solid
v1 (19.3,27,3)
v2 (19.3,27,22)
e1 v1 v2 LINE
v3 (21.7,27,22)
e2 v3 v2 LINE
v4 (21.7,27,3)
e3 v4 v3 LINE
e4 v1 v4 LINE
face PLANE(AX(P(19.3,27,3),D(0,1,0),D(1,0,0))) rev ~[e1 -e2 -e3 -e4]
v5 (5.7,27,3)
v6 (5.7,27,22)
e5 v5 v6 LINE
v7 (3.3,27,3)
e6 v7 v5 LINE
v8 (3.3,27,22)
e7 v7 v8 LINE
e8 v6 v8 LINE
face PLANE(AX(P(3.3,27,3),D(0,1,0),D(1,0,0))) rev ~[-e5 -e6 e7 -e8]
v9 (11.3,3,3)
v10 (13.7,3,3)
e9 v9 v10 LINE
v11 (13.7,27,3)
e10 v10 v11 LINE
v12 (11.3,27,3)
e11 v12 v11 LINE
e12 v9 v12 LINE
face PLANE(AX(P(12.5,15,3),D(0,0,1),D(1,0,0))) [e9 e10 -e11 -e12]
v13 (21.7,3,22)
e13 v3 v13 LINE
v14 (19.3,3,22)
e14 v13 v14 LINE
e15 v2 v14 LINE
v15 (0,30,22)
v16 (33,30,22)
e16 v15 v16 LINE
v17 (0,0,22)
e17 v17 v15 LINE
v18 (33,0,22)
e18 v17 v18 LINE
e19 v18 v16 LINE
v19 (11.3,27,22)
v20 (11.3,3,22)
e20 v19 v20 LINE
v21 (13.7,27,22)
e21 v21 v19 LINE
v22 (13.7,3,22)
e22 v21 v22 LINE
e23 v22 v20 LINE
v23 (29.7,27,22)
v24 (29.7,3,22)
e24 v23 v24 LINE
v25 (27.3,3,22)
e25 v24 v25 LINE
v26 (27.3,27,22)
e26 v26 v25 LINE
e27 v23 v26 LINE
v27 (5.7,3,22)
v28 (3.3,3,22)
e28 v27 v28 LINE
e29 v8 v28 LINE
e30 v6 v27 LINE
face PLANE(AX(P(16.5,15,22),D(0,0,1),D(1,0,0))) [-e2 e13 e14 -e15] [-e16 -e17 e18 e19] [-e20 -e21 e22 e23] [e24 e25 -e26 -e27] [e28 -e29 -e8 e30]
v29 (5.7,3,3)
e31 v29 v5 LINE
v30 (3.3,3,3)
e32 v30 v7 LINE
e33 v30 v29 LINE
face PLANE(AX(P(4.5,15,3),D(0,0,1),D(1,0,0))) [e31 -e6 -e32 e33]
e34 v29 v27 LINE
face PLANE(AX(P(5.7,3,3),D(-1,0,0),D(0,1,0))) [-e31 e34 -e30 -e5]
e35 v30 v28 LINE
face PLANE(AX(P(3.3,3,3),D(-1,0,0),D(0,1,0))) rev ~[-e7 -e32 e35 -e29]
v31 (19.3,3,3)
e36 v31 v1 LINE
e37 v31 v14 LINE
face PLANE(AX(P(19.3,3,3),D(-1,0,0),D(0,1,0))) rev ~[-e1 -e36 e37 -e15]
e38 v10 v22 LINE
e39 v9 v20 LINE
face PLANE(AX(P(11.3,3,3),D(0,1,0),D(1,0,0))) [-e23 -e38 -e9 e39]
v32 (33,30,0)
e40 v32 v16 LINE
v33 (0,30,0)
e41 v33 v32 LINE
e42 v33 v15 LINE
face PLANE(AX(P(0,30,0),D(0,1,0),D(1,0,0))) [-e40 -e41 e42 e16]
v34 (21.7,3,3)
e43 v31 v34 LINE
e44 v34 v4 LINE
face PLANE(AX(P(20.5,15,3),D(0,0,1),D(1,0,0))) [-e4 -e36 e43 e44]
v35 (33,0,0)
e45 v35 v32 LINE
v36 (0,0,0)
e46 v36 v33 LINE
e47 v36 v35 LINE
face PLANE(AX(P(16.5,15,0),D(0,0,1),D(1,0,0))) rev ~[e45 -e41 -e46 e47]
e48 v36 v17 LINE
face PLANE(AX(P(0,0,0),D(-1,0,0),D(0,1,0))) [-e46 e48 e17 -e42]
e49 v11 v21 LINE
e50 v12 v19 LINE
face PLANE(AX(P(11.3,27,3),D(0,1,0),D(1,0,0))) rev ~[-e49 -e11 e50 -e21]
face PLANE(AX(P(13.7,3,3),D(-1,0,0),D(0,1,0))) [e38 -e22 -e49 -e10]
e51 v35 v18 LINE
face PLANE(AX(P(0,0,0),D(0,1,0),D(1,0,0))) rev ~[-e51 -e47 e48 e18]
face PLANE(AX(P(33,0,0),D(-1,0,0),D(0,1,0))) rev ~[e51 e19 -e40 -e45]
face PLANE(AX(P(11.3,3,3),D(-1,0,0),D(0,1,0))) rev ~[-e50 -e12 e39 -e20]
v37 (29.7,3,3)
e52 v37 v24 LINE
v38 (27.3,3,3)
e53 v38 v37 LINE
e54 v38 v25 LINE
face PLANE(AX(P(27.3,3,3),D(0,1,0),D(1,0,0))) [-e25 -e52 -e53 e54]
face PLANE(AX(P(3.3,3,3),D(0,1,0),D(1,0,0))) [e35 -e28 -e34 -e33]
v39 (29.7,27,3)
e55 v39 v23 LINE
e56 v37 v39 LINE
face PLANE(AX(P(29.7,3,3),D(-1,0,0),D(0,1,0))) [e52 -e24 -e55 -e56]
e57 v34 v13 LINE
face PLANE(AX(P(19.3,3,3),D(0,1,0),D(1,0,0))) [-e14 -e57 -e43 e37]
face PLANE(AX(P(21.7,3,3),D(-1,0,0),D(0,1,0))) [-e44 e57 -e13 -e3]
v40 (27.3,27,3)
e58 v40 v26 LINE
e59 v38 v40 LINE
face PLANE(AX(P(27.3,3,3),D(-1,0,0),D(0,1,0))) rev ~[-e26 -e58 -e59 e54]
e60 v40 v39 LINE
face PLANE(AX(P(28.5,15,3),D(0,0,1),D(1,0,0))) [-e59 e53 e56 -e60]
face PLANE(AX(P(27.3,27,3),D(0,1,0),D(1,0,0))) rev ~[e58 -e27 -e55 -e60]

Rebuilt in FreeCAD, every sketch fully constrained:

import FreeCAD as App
import Part
import Sketcher

V = App.Vector


def add_polygon(sketch, points):
    """Adds a closed chain of lines whose ends are joined by coincident constraints."""
    first, n = sketch.GeometryCount, len(points)
    for a, b in zip(points, points[1:] + points[:1]):
        sketch.addGeometry(Part.LineSegment(App.Vector(*a, 0), App.Vector(*b, 0)), False)
    for i in range(n):
        sketch.addConstraint(Sketcher.Constraint("Coincident", first + i, 2, first + (i + 1) % n, 1))

doc = App.newDocument("Part")
body = doc.addObject("PartDesign::Body", "Body")

# Sketch on XY plane
sketch1 = doc.addObject("Sketcher::SketchObject", "Sketch")
body.addObject(sketch1)
sketch1.AttachmentSupport = (doc.XY_Plane, [""])
sketch1.MapMode = "FlatFace"
add_polygon(sketch1, [(11.3, 27), (11.3, 3), (13.7, 3), (13.7, 27)])  # lines 0-3
sketch1.addConstraint([
    Sketcher.Constraint("Vertical", 0),
    Sketcher.Constraint("Horizontal", 1),
    Sketcher.Constraint("Vertical", 2),
    Sketcher.Constraint("Horizontal", 3),
    Sketcher.Constraint("DistanceY", 0, 2, 0, 1, 24.0),
    Sketcher.Constraint("DistanceX", 1, 1, 1, 2, 2.4),
    Sketcher.Constraint("DistanceY", -1, 1, 0, 2, 3.0),
    Sketcher.Constraint("DistanceX", -1, 1, 0, 2, 11.3),
])
pad1 = doc.addObject("PartDesign::Pad", "Pad")
body.addObject(pad1)
pad1.Profile = sketch1
pad1.Length = 30
body2 = doc.addObject("PartDesign::Body", "Body001")

# Sketch on XY plane
sketch2 = doc.addObject("Sketcher::SketchObject", "Sketch001")
body2.addObject(sketch2)
sketch2.AttachmentSupport = (doc.getObject("XY_Plane001"), [""])
sketch2.MapMode = "FlatFace"
add_polygon(sketch2, [(19.3, 27), (19.3, 3), (21.7, 3), (21.7, 27)])  # lines 0-3
sketch2.addConstraint([
    Sketcher.Constraint("Vertical", 0),
    Sketcher.Constraint("Horizontal", 1),
    Sketcher.Constraint("Vertical", 2),
    Sketcher.Constraint("Horizontal", 3),
    Sketcher.Constraint("DistanceY", 0, 2, 0, 1, 24.0),
    Sketcher.Constraint("DistanceX", 1, 1, 1, 2, 2.4),
    Sketcher.Constraint("DistanceY", -1, 1, 0, 2, 3.0),
    Sketcher.Constraint("DistanceX", -1, 1, 0, 2, 19.3),
])
pad2 = doc.addObject("PartDesign::Pad", "Pad001")
body2.addObject(pad2)
pad2.Profile = sketch2
pad2.Length = 30
body3 = doc.addObject("PartDesign::Body", "Body002")

# Sketch on XY plane
sketch3 = doc.addObject("Sketcher::SketchObject", "Sketch002")
body3.addObject(sketch3)
sketch3.AttachmentSupport = (doc.getObject("XY_Plane002"), [""])
sketch3.MapMode = "FlatFace"
add_polygon(sketch3, [(27.3, 27), (27.3, 3), (29.7, 3), (29.7, 27)])  # lines 0-3
sketch3.addConstraint([
    Sketcher.Constraint("Vertical", 0),
    Sketcher.Constraint("Horizontal", 1),
    Sketcher.Constraint("Vertical", 2),
    Sketcher.Constraint("Horizontal", 3),
    Sketcher.Constraint("DistanceY", 0, 2, 0, 1, 24.0),
    Sketcher.Constraint("DistanceX", 1, 1, 1, 2, 2.4),
    Sketcher.Constraint("DistanceY", -1, 1, 0, 2, 3.0),
    Sketcher.Constraint("DistanceX", -1, 1, 0, 2, 27.3),
])
pad3 = doc.addObject("PartDesign::Pad", "Pad002")
body3.addObject(pad3)
pad3.Profile = sketch3
pad3.Length = 30
body4 = doc.addObject("PartDesign::Body", "Body003")
body4.AllowCompound = True

# Sketch on XY plane
sketch4 = doc.addObject("Sketcher::SketchObject", "Sketch003")
body4.addObject(sketch4)
sketch4.AttachmentSupport = (doc.getObject("XY_Plane003"), [""])
sketch4.MapMode = "FlatFace"
add_polygon(sketch4, [(3.3, 27), (3.3, 3), (5.7, 3), (5.7, 27)])  # lines 0-3
sketch4.addConstraint([
    Sketcher.Constraint("Vertical", 0),
    Sketcher.Constraint("Horizontal", 1),
    Sketcher.Constraint("Vertical", 2),
    Sketcher.Constraint("Horizontal", 3),
    Sketcher.Constraint("DistanceY", 0, 2, 0, 1, 24.0),
    Sketcher.Constraint("DistanceX", 1, 1, 1, 2, 2.4),
    Sketcher.Constraint("DistanceY", -1, 1, 0, 2, 3.0),
    Sketcher.Constraint("DistanceX", -1, 1, 0, 2, 3.3),
])
pad4 = doc.addObject("PartDesign::Pad", "Pad003")
body4.addObject(pad4)
pad4.Profile = sketch4
pad4.Length = 30
doc.recompute()

boolean = doc.addObject("PartDesign::Boolean", "Boolean")
body4.addObject(boolean)
boolean.Type = "Fuse"
boolean.addObjects([body])
doc.recompute()

boolean2 = doc.addObject("PartDesign::Boolean", "Boolean001")
body4.addObject(boolean2)
boolean2.Type = "Fuse"
boolean2.addObjects([body2])
doc.recompute()

boolean3 = doc.addObject("PartDesign::Boolean", "Boolean002")
body4.addObject(boolean3)
boolean3.Type = "Fuse"
boolean3.addObjects([body3])
body5 = doc.addObject("PartDesign::Body", "Body004")
body5.AllowCompound = True
doc.recompute()

body4.Placement = App.Placement(V(0, 0, 3), App.Rotation(V(0, 0, 1), 0))
boolean4 = doc.addObject("PartDesign::Boolean", "Boolean003")
body5.addObject(boolean4)
boolean4.Type = "Fuse"
boolean4.addObjects([body4])
body6 = doc.addObject("PartDesign::Body", "Body005")

# Sketch on XY plane
sketch5 = doc.addObject("Sketcher::SketchObject", "Sketch004")
body6.addObject(sketch5)
sketch5.AttachmentSupport = (doc.getObject("XY_Plane005"), [""])
sketch5.MapMode = "FlatFace"
add_polygon(sketch5, [(0, 30), (0, 0), (33, 0), (33, 30)])  # lines 0-3
sketch5.addConstraint([
    Sketcher.Constraint("Vertical", 0),
    Sketcher.Constraint("Horizontal", 1),
    Sketcher.Constraint("Vertical", 2),
    Sketcher.Constraint("Horizontal", 3),
    Sketcher.Constraint("Coincident", 0, 2, -1, 1),
    Sketcher.Constraint("DistanceX", 1, 1, 1, 2, 33.0),
    Sketcher.Constraint("DistanceY", 0, 2, 0, 1, 30.0),
])
pad5 = doc.addObject("PartDesign::Pad", "Pad004")
body6.addObject(pad5)
pad5.Profile = sketch5
pad5.Length = 22
doc.recompute()

boolean5 = doc.addObject("PartDesign::Boolean", "Boolean004")
body6.addObject(boolean5)
boolean5.Type = "Cut"
boolean5.addObjects([body5])

doc.recompute()
